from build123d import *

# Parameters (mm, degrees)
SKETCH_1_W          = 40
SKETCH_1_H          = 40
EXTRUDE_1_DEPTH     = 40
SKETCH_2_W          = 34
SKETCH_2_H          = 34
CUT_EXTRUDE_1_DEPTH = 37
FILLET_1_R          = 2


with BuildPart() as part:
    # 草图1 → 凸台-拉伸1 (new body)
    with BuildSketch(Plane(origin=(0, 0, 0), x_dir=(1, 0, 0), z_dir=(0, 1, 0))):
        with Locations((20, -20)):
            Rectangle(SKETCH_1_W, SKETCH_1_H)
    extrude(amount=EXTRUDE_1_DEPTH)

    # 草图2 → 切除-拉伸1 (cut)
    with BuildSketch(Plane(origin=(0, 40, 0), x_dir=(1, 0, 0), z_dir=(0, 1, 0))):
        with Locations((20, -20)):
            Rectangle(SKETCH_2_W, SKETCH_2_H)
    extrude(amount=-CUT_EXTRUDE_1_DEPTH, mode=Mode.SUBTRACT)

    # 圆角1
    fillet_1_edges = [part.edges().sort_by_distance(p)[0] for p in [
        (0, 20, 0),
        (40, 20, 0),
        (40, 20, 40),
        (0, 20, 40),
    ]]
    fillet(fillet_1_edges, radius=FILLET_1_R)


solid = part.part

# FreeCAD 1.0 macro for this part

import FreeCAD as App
import Part
import Sketcher

V = App.Vector
Q = App.Units.Quantity


def edges_at(feature, points):
    """Names of the edges that pass closest to the given points."""
    edges = feature.Shape.Edges
    near = lambda p: min(range(len(edges)), key=lambda i: edges[i].distToShape(Part.Vertex(*p))[0])
    return sorted({f"Edge{near(p) + 1}" for p in points})


def add_polygon(sketch, points):
    """Adds a closed chain of lines whose ends are joined by coincident constraints."""
    first, n = sketch.GeometryCount, len(points)
    for a, b in zip(points, points[1:] + points[:1]):
        sketch.addGeometry(Part.LineSegment(App.Vector(*a, 0), App.Vector(*b, 0)), False)
    for i in range(n):
        sketch.addConstraint(Sketcher.Constraint("Coincident", first + i, 2, first + (i + 1) % n, 1))

doc = App.newDocument("Part")
params = doc.addObject("Spreadsheet::Sheet", "Params")
for row, (alias, value) in enumerate([
    ("sketch1_width", "40 mm"),
    ("pad1_length", "40 mm"),
    ("sketch2_width", "34 mm"),
    ("pocket1_length", "37 mm"),
    ("fillet_radius", "2 mm"),
], start=1):
    params.set(f"A{row}", alias)
    params.set(f"B{row}", "=" + value)
    params.setAlias(f"B{row}", alias)

body = doc.addObject("PartDesign::Body", "Body")

sketch1 = doc.addObject("Sketcher::SketchObject", "Sketch")
body.addObject(sketch1)
sketch1.AttachmentSupport = (doc.XZ_Plane, [""])
sketch1.MapMode = "FlatFace"
add_polygon(sketch1, [(0, 0), (0, 40), (40, 40), (40, 0)])
sketch1.addConstraint([
    Sketcher.Constraint("Vertical", 0),
    Sketcher.Constraint("Horizontal", 1),
    Sketcher.Constraint("Vertical", 2),
    Sketcher.Constraint("Horizontal", 3),
    Sketcher.Constraint("Coincident", 3, 2, -1, 1),
    Sketcher.Constraint("Equal", 3, 0),
    Sketcher.Constraint("DistanceX", 1, 1, 1, 2, Q("40 mm")),
])
sketch1.setExpression("Constraints[10]", "Params.sketch1_width")
pad1 = doc.addObject("PartDesign::Pad", "Pad")
body.addObject(pad1)
pad1.Profile = sketch1
pad1.setExpression("Length", "Params.pad1_length")
pad1.Reversed = True

sketch2 = doc.addObject("Sketcher::SketchObject", "Sketch001")
body.addObject(sketch2)
sketch2.AttachmentSupport = (doc.XZ_Plane, [""])
sketch2.MapMode = "FlatFace"
sketch2.AttachmentOffset = App.Placement(V(0, 0, -40), App.Rotation())
add_polygon(sketch2, [(3, 3), (3, 37), (37, 37), (37, 3)])
sketch2.addConstraint([
    Sketcher.Constraint("Vertical", 0),
    Sketcher.Constraint("Horizontal", 1),
    Sketcher.Constraint("Vertical", 2),
    Sketcher.Constraint("Horizontal", 3),
    Sketcher.Constraint("Equal", 3, 0),
    Sketcher.Constraint("DistanceX", 1, 1, 1, 2, Q("34 mm")),
    Sketcher.Constraint("DistanceX", -1, 1, 0, 2, Q("3 mm")),
    Sketcher.Constraint("DistanceY", -1, 1, 0, 2, Q("37 mm")),
])
sketch2.setExpression("Constraints[9]", "Params.sketch2_width")
pocket1 = doc.addObject("PartDesign::Pocket", "Pocket")
body.addObject(pocket1)
pocket1.Profile = sketch2
pocket1.setExpression("Length", "Params.pocket1_length")
pocket1.Reversed = True
doc.recompute()

fillet = doc.addObject("PartDesign::Fillet", "Fillet")
body.addObject(fillet)
fillet.Base = (pocket1, edges_at(pocket1, [
    (0, 20, 0),
    (40, 20, 0),
    (40, 20, 40),
    (0, 20, 40),
]))
fillet.setExpression("Radius", "Params.fillet_radius")

doc.recompute()
